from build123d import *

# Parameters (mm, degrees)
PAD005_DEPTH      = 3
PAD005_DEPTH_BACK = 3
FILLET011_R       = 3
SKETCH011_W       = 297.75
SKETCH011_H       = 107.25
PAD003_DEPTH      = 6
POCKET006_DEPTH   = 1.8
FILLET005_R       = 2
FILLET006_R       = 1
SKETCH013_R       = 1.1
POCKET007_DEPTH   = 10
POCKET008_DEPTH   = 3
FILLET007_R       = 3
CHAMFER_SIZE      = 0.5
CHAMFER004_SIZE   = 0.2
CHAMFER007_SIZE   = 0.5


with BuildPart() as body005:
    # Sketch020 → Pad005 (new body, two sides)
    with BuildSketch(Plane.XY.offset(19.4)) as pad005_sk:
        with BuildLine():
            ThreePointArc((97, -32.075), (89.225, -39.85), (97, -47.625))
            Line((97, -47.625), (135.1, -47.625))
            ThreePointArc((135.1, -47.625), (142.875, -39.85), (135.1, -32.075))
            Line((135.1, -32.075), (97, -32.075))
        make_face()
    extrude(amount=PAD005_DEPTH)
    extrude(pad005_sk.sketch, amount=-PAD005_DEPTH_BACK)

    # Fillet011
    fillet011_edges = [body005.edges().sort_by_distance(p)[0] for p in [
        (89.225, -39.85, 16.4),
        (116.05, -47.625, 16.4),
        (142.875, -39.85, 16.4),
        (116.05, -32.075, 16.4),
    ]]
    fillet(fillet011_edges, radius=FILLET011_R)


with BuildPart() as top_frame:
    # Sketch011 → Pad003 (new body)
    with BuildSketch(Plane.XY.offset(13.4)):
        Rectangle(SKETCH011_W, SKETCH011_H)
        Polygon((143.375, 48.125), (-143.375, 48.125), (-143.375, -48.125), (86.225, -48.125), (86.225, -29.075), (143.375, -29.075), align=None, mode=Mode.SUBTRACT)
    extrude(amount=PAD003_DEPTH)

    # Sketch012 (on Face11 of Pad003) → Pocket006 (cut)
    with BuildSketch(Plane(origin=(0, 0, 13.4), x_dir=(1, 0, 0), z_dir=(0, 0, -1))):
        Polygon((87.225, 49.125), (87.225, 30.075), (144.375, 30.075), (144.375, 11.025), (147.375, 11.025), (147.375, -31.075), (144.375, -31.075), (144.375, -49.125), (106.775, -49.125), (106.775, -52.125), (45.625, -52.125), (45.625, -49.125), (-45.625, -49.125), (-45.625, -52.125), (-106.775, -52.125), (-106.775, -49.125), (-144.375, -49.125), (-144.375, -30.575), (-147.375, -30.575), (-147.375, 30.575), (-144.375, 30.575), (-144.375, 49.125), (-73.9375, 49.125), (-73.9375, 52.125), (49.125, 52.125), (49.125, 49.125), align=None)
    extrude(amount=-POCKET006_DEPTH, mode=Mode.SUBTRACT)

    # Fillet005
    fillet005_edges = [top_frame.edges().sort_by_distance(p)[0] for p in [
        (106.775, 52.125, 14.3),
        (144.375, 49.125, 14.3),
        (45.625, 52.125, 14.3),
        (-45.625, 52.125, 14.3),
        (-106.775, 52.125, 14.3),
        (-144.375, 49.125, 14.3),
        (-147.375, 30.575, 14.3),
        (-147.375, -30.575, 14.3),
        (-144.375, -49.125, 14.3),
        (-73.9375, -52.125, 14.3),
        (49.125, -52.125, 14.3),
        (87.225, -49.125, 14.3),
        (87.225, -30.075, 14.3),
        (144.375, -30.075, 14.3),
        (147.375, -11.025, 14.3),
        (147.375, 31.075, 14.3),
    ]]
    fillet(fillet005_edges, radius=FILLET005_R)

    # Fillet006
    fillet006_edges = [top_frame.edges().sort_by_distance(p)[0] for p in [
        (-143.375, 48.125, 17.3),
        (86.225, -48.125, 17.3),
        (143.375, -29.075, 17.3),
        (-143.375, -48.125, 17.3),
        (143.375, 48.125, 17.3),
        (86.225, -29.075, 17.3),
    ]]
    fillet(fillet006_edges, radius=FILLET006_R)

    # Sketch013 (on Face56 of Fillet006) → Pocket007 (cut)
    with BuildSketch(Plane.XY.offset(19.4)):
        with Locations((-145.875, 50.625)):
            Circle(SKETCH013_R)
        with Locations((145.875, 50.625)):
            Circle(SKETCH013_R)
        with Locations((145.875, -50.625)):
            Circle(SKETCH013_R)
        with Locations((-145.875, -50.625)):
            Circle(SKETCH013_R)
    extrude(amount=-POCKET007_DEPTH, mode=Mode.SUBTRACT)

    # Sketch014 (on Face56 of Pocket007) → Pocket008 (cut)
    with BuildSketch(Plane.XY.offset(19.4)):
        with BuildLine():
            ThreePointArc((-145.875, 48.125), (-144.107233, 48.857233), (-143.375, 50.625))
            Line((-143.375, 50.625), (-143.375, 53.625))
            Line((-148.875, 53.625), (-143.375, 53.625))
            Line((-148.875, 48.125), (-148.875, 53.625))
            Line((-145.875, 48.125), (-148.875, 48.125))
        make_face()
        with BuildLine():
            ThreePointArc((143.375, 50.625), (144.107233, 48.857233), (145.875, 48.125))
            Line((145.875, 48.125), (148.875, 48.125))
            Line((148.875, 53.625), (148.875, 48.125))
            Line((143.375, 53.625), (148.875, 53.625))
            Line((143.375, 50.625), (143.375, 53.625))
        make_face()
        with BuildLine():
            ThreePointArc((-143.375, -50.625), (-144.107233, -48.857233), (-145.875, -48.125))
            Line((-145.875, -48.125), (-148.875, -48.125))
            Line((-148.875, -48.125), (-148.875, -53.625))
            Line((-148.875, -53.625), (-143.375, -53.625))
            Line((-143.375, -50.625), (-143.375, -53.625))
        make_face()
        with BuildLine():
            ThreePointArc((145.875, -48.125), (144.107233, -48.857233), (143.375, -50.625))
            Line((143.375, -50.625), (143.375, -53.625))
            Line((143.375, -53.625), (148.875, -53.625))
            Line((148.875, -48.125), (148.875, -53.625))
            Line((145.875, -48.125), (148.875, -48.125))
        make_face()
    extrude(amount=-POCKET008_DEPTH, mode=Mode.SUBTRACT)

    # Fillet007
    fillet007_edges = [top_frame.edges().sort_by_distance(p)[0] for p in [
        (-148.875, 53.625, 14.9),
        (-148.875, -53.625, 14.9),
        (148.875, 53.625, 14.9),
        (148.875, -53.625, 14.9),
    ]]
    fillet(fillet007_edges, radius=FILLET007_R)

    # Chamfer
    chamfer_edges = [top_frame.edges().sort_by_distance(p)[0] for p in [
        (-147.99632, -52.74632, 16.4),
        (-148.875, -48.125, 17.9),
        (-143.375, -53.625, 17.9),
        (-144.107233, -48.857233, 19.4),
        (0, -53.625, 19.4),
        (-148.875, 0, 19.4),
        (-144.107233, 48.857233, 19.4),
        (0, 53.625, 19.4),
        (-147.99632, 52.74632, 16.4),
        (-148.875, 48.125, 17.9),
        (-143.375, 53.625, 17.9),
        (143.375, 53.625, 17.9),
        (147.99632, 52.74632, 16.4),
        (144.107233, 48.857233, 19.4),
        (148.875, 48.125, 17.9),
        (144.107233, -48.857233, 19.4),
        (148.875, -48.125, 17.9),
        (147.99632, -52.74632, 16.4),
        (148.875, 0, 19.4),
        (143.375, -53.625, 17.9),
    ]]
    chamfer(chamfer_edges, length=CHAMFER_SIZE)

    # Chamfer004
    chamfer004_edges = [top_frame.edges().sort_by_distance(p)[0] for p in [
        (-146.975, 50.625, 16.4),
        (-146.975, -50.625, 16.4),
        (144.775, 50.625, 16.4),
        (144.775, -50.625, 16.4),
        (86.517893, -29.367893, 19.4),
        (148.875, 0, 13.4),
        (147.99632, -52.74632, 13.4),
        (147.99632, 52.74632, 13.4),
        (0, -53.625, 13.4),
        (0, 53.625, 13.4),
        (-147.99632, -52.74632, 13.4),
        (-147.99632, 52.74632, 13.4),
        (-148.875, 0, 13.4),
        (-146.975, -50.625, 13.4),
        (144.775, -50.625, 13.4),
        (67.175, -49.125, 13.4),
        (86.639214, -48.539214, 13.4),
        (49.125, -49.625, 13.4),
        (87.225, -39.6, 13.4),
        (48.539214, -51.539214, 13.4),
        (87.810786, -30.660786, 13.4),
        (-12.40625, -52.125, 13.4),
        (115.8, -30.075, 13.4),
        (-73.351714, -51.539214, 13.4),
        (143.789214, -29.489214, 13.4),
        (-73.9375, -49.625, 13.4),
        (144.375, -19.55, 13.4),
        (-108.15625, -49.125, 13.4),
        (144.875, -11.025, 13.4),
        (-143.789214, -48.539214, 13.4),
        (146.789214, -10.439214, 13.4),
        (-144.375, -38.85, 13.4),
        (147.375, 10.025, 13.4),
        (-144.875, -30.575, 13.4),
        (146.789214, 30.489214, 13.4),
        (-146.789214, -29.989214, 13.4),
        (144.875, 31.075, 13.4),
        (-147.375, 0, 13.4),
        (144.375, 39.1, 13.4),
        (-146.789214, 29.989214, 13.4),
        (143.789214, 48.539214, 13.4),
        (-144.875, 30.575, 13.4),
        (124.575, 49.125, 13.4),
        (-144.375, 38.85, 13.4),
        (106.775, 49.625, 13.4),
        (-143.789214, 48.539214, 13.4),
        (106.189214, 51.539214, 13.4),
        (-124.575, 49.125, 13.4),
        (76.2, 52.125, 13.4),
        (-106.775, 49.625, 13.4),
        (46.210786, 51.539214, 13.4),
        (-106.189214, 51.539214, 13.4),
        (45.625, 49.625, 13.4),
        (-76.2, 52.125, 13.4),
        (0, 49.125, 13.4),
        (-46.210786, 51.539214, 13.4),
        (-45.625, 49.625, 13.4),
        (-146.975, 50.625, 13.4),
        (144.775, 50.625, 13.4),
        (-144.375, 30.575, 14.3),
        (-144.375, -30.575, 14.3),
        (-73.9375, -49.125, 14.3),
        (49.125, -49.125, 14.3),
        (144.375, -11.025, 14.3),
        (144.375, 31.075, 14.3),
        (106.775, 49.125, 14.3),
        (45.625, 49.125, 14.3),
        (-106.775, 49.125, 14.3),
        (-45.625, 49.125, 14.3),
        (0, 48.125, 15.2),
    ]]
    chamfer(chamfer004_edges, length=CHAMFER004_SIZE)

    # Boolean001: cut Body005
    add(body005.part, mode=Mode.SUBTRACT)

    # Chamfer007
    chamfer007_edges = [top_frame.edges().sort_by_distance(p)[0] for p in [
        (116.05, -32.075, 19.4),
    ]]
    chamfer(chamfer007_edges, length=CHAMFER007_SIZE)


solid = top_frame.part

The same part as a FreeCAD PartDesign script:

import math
import FreeCAD as App
import Part
import Sketcher

V = App.Vector
Q = App.Units.Quantity


def edges_at(feature, points):
    """Names of the edges that pass closest to the given points."""
    edges = feature.Shape.Edges
    near = lambda p: min(range(len(edges)), key=lambda i: edges[i].distToShape(Part.Vertex(*p))[0])
    return sorted({f"Edge{near(p) + 1}" for p in points})


def add_polygon(sketch, points):
    """Adds a closed chain of lines whose ends are joined by coincident constraints."""
    first, n = sketch.GeometryCount, len(points)
    for a, b in zip(points, points[1:] + points[:1]):
        sketch.addGeometry(Part.LineSegment(App.Vector(*a, 0), App.Vector(*b, 0)), False)
    for i in range(n):
        sketch.addConstraint(Sketcher.Constraint("Coincident", first + i, 2, first + (i + 1) % n, 1))

doc = App.newDocument("Part")
params = doc.addObject("Spreadsheet::Sheet", "Params")
for row, (alias, value) in enumerate([
    ("sketch1_width", "38.1 mm"),
    ("pad1_length", "3 mm"),
    ("pad1_length2", "3 mm"),
    ("fillet_radius", "3 mm"),
    ("sketch2_width", "229.6 mm"),
    ("sketch2_height", "77.2 mm"),
    ("sketch2_width2", "297.75 mm"),
    ("sketch2_width3", "286.75 mm"),
    ("sketch2_height2", "107.25 mm"),
    ("pad2_length", "6 mm"),
    ("sketch3_width", "3 mm"),
    ("sketch3_width2", "38.1 mm"),
    ("sketch3_width3", "37.6 mm"),
    ("sketch3_height", "42.1 mm"),
    ("sketch3_width4", "61.15 mm"),
    ("pocket1_length", "1.8 mm"),
    ("fillet2_radius", "2 mm"),
    ("fillet3_radius", "1 mm"),
    ("sketch4_diameter", "2.2 mm"),
    ("pocket2_length", "10 mm"),
    ("sketch5_radius", "2.5 mm"),
    ("sketch5_width", "3 mm"),
    ("pocket3_length", "3 mm"),
    ("fillet4_radius", "3 mm"),
    ("chamfer_size", "0.5 mm"),
    ("chamfer2_size", "0.2 mm"),
    ("chamfer3_size", "0.5 mm"),
], start=1):
    params.set(f"A{row}", alias)
    params.set(f"B{row}", "=" + value)
    params.setAlias(f"B{row}", alias)

body = doc.addObject("PartDesign::Body", "Body")

sketch1 = doc.addObject("Sketcher::SketchObject", "Sketch")
body.addObject(sketch1)
sketch1.AttachmentSupport = (doc.XY_Plane, [""])
sketch1.MapMode = "FlatFace"
sketch1.AttachmentOffset = App.Placement(V(0, 0, 19.4), App.Rotation())
sketch1.addGeometry([
    Part.ArcOfCircle(Part.Circle(V(97, -40, 0), V(0, 0, 1), 8), math.radians(90), math.radians(270)),
    Part.LineSegment(V(97, -48, 0), V(135, -48, 0)),
    Part.ArcOfCircle(Part.Circle(V(135, -40, 0), V(0, 0, 1), 8), math.radians(-90), math.radians(90)),
    Part.LineSegment(V(135, -32, 0), V(97, -32, 0)),
], False)
sketch1.addConstraint([
    Sketcher.Constraint("Tangent", 0, 2, 1, 1),
    Sketcher.Constraint("Tangent", 1, 2, 2, 1),
    Sketcher.Constraint("Tangent", 2, 2, 3, 1),
    Sketcher.Constraint("Tangent", 3, 2, 0, 1),
    Sketcher.Constraint("Horizontal", 1),
    Sketcher.Constraint("Horizontal", 3),
    Sketcher.Constraint("DistanceX", 1, 1, 1, 2, Q("38.1 mm")),
    Sketcher.Constraint("DistanceX", -1, 1, 0, 3, Q("97 mm")),
    Sketcher.Constraint("Radius", 0, Q("7.775 mm")),
    Sketcher.Constraint("DistanceY", 0, 3, -1, 1, Q("39.85 mm")),
])
sketch1.setExpression("Constraints[6]", "Params.sketch1_width")
pad1 = doc.addObject("PartDesign::Pad", "Pad")
body.addObject(pad1)
pad1.Profile = sketch1
pad1.Type = "TwoLengths"
pad1.setExpression("Length", "Params.pad1_length")
pad1.setExpression("Length2", "Params.pad1_length2")
doc.recompute()

fillet = doc.addObject("PartDesign::Fillet", "Fillet")
body.addObject(fillet)
fillet.Base = (pad1, edges_at(pad1, [
    (89.225, -39.85, 16.4),
    (116.05, -47.625, 16.4),
    (142.875, -39.85, 16.4),
    (116.05, -32.075, 16.4),
]))
fillet.setExpression("Radius", "Params.fillet_radius")
body2 = doc.addObject("PartDesign::Body", "Body001")

sketch2 = doc.addObject("Sketcher::SketchObject", "Sketch001")
body2.addObject(sketch2)
sketch2.AttachmentSupport = (doc.getObject("XY_Plane001"), [""])
sketch2.MapMode = "FlatFace"
sketch2.AttachmentOffset = App.Placement(V(0, 0, 13.4), App.Rotation())
add_polygon(sketch2, [(-149, 54), (-149, -54), (149, -54), (149, 54)])
add_polygon(sketch2, [(-143, 48), (143, 48), (143, -29), (86, -29), (86, -48), (-143, -48)])
sketch2.addConstraint([
    Sketcher.Constraint("Vertical", 0),
    Sketcher.Constraint("Horizontal", 1),
    Sketcher.Constraint("Vertical", 2),
    Sketcher.Constraint("Horizontal", 3),
    Sketcher.Constraint("Horizontal", 4),
    Sketcher.Constraint("Vertical", 5),
    Sketcher.Constraint("Horizontal", 6),
    Sketcher.Constraint("Vertical", 7),
    Sketcher.Constraint("Horizontal", 8),
    Sketcher.Constraint("Vertical", 9),
    Sketcher.Constraint("Symmetric", 0, 2, 2, 2, -1, 1),
    Sketcher.Constraint("Symmetric", 4, 2, 8, 2, -1, 1),
    Sketcher.Constraint("DistanceX", 8, 2, 8, 1, Q("229.6 mm")),
    Sketcher.Constraint("DistanceY", 5, 2, 5, 1, Q("77.2 mm")),
    Sketcher.Constraint("DistanceX", 1, 1, 1, 2, Q("297.75 mm")),
    Sketcher.Constraint("DistanceX", 4, 1, 4, 2, Q("286.75 mm")),
    Sketcher.Constraint("DistanceY", 0, 2, 0, 1, Q("107.25 mm")),
    Sketcher.Constraint("DistanceY", 7, 2, 7, 1, Q("19.05 mm")),
])
sketch2.setExpression("Constraints[22]", "Params.sketch2_width")
sketch2.setExpression("Constraints[23]", "Params.sketch2_height")
sketch2.setExpression("Constraints[24]", "Params.sketch2_width2")
sketch2.setExpression("Constraints[25]", "Params.sketch2_width3")
sketch2.setExpression("Constraints[26]", "Params.sketch2_height2")
pad2 = doc.addObject("PartDesign::Pad", "Pad001")
body2.addObject(pad2)
pad2.Profile = sketch2
pad2.setExpression("Length", "Params.pad2_length")

sketch3 = doc.addObject("Sketcher::SketchObject", "Sketch002")
body2.addObject(sketch3)
sketch3.AttachmentSupport = (doc.getObject("XY_Plane001"), [""])
sketch3.MapMode = "FlatFace"
sketch3.AttachmentOffset = App.Placement(V(0, 0, 13.4), App.Rotation())
add_polygon(sketch3, [(87.2, -30.1), (87.2, -49.1), (49.1, -49.1), (49.1, -52.1), (-73.9, -52.1), (-73.9, -49.1), (-144.4, -49.1), (-144.4, -30.6), (-147.4, -30.6), (-147.4, 30.6), (-144.4, 30.6), (-144.4, 49.1), (-106.8, 49.1), (-106.8, 52.1), (-45.6, 52.1), (-45.6, 49.1), (45.6, 49.1), (45.6, 52.1), (106.8, 52.1), (106.8, 49.1), (144.4, 49.1), (144.4, 31.1), (147.4, 31.1), (147.4, -11), (144.4, -11), (144.4, -30.1)])
sketch3.addConstraint([
    Sketcher.Constraint("Vertical", 0),
    Sketcher.Constraint("Horizontal", 1),
    Sketcher.Constraint("Vertical", 2),
    Sketcher.Constraint("Horizontal", 3),
    Sketcher.Constraint("Vertical", 4),
    Sketcher.Constraint("Horizontal", 5),
    Sketcher.Constraint("Vertical", 6),
    Sketcher.Constraint("Horizontal", 7),
    Sketcher.Constraint("Vertical", 8),
    Sketcher.Constraint("Horizontal", 9),
    Sketcher.Constraint("Vertical", 10),
    Sketcher.Constraint("Horizontal", 11),
    Sketcher.Constraint("Vertical", 12),
    Sketcher.Constraint("Horizontal", 13),
    Sketcher.Constraint("Vertical", 14),
    Sketcher.Constraint("Horizontal", 15),
    Sketcher.Constraint("Vertical", 16),
    Sketcher.Constraint("Horizontal", 17),
    Sketcher.Constraint("Vertical", 18),
    Sketcher.Constraint("Horizontal", 19),
    Sketcher.Constraint("Vertical", 20),
    Sketcher.Constraint("Horizontal", 21),
    Sketcher.Constraint("Vertical", 22),
    Sketcher.Constraint("Horizontal", 23),
    Sketcher.Constraint("Vertical", 24),
    Sketcher.Constraint("Horizontal", 25),
    Sketcher.Constraint("Symmetric", 5, 2, 19, 2, -1, 1),
    Sketcher.Constraint("Symmetric", 13, 2, 16, 2, -2),
    Sketcher.Constraint("Symmetric", 11, 2, 18, 2, -2),
    Sketcher.Constraint("Symmetric", 6, 2, 9, 2, -1),
    Sketcher.Constraint("Horizontal", 1, 2, 4, 2),
    Sketcher.Constraint("Horizontal", 11, 2, 14, 2),
    Sketcher.Constraint("Vertical", 20, 2, 23, 2),
    Sketcher.Constraint("Equal", 9, 21),
    Sketcher.Constraint("Equal", 23, 2),
    Sketcher.Constraint("Equal", 17, 8),
    Sketcher.Constraint("Equal", 4, 12),
    Sketcher.Constraint("Equal", 0, 24),
    Sketcher.Constraint("DistanceX", 7, 2, 7, 1, Q("3 mm")),
    Sketcher.Constraint("DistanceX", 1, 2, 1, 1, Q("38.1 mm")),
    Sketcher.Constraint("DistanceX", 11, 1, 11, 2, Q("37.6 mm")),
    Sketcher.Constraint("DistanceY", 22, 2, 22, 1, Q("42.1 mm")),
    Sketcher.Constraint("DistanceX", 13, 1, 13, 2, Q("61.15 mm")),
    Sketcher.Constraint("DistanceX", 15, 1, 15, 2, Q("91.25 mm")),
    Sketcher.Constraint("DistanceX", 25, 2, 25, 1, Q("57.15 mm")),
    Sketcher.Constraint("DistanceY", 0, 2, 0, 1, Q("19.05 mm")),
    Sketcher.Constraint("DistanceY", 6, 1, 6, 2, Q("18.55 mm")),
    Sketcher.Constraint("DistanceX", 3, 2, 3, 1, Q("123.0625 mm")),
])
sketch3.setExpression("Constraints[64]", "Params.sketch3_width")
sketch3.setExpression("Constraints[65]", "Params.sketch3_width2")
sketch3.setExpression("Constraints[66]", "Params.sketch3_width3")
sketch3.setExpression("Constraints[67]", "Params.sketch3_height")
sketch3.setExpression("Constraints[68]", "Params.sketch3_width4")
pocket1 = doc.addObject("PartDesign::Pocket", "Pocket")
body2.addObject(pocket1)
pocket1.Profile = sketch3
pocket1.setExpression("Length", "Params.pocket1_length")
pocket1.Reversed = True
doc.recompute()

fillet2 = doc.addObject("PartDesign::Fillet", "Fillet001")
body2.addObject(fillet2)
fillet2.Base = (pocket1, edges_at(pocket1, [
    (106.775, 52.125, 14.3),
    (144.375, 49.125, 14.3),
    (45.625, 52.125, 14.3),
    (-45.625, 52.125, 14.3),
    (-106.775, 52.125, 14.3),
    (-144.375, 49.125, 14.3),
    (-147.375, 30.575, 14.3),
    (-147.375, -30.575, 14.3),
    (-144.375, -49.125, 14.3),
    (-73.938, -52.125, 14.3),
    (49.125, -52.125, 14.3),
    (87.225, -49.125, 14.3),
    (87.225, -30.075, 14.3),
    (144.375, -30.075, 14.3),
    (147.375, -11.025, 14.3),
    (147.375, 31.075, 14.3),
]))
fillet2.setExpression("Radius", "Params.fillet2_radius")
doc.recompute()

fillet3 = doc.addObject("PartDesign::Fillet", "Fillet002")
body2.addObject(fillet3)
fillet3.Base = (fillet2, edges_at(fillet2, [
    (-143.375, 48.125, 17.3),
    (86.225, -48.125, 17.3),
    (143.375, -29.075, 17.3),
    (-143.375, -48.125, 17.3),
    (143.375, 48.125, 17.3),
    (86.225, -29.075, 17.3),
]))
fillet3.setExpression("Radius", "Params.fillet3_radius")

sketch4 = doc.addObject("Sketcher::SketchObject", "Sketch003")
body2.addObject(sketch4)
sketch4.AttachmentSupport = (doc.getObject("XY_Plane001"), [""])
sketch4.MapMode = "FlatFace"
sketch4.AttachmentOffset = App.Placement(V(0, 0, 19.4), App.Rotation())
sketch4.addGeometry([
    Part.Circle(V(-145.9, 50.6, 0), V(0, 0, 1), 1.1),
    Part.Circle(V(145.9, 50.6, 0), V(0, 0, 1), 1.1),
    Part.Circle(V(145.9, -50.6, 0), V(0, 0, 1), 1.1),
    Part.Circle(V(-145.9, -50.6, 0), V(0, 0, 1), 1.1),
], False)
sketch4.addConstraint([
    Sketcher.Constraint("Equal", 0, 1),
    Sketcher.Constraint("Equal", 1, 2),
    Sketcher.Constraint("Equal", 2, 3),
    Sketcher.Constraint("Symmetric", 0, 3, 2, 3, -1, 1),
    Sketcher.Constraint("Symmetric", 1, 3, 3, 3, -1, 1),
    Sketcher.Constraint("Symmetric", 0, 3, 1, 3, -2),
    Sketcher.Constraint("Diameter", 0, Q("2.2 mm")),
    Sketcher.Constraint("DistanceX", 0, 3, 1, 3, Q("291.75 mm")),
    Sketcher.Constraint("DistanceY", 2, 3, 1, 3, Q("101.25 mm")),
])
sketch4.setExpression("Constraints[6]", "Params.sketch4_diameter")
pocket2 = doc.addObject("PartDesign::Pocket", "Pocket001")
body2.addObject(pocket2)
pocket2.Profile = sketch4
pocket2.setExpression("Length", "Params.pocket2_length")

sketch5 = doc.addObject("Sketcher::SketchObject", "Sketch004")
body2.addObject(sketch5)
sketch5.AttachmentSupport = (doc.getObject("XY_Plane001"), [""])
sketch5.MapMode = "FlatFace"
sketch5.AttachmentOffset = App.Placement(V(0, 0, 19.4), App.Rotation())
sketch5.addGeometry([
    Part.ArcOfCircle(Part.Circle(V(-145.9, 50.6, 0), V(0, 0, 1), 2.5), math.radians(-90), math.radians(0)),
    Part.LineSegment(V(-143.4, 50.6, 0), V(-143.4, 53.6, 0)),
    Part.LineSegment(V(-143.4, 53.6, 0), V(-148.9, 53.6, 0)),
    Part.LineSegment(V(-148.9, 53.6, 0), V(-148.9, 48.1, 0)),
    Part.LineSegment(V(-148.9, 48.1, 0), V(-145.9, 48.1, 0)),
    Part.ArcOfCircle(Part.Circle(V(145.9, 50.6, 0), V(0, 0, 1), 2.5), math.radians(180), math.radians(270)),
    Part.LineSegment(V(145.9, 48.1, 0), V(148.9, 48.1, 0)),
    Part.LineSegment(V(148.9, 48.1, 0), V(148.9, 53.6, 0)),
    Part.LineSegment(V(148.9, 53.6, 0), V(143.4, 53.6, 0)),
    Part.LineSegment(V(143.4, 53.6, 0), V(143.4, 50.6, 0)),
    Part.ArcOfCircle(Part.Circle(V(-145.9, -50.6, 0), V(0, 0, 1), 2.5), math.radians(0), math.radians(90)),
    Part.LineSegment(V(-145.9, -48.1, 0), V(-148.9, -48.1, 0)),
    Part.LineSegment(V(-148.9, -48.1, 0), V(-148.9, -53.6, 0)),
    Part.LineSegment(V(-148.9, -53.6, 0), V(-143.4, -53.6, 0)),
    Part.LineSegment(V(-143.4, -53.6, 0), V(-143.4, -50.6, 0)),
    Part.ArcOfCircle(Part.Circle(V(145.9, -50.6, 0), V(0, 0, 1), 2.5), math.radians(90), math.radians(180)),
    Part.LineSegment(V(143.4, -50.6, 0), V(143.4, -53.6, 0)),
    Part.LineSegment(V(143.4, -53.6, 0), V(148.9, -53.6, 0)),
    Part.LineSegment(V(148.9, -53.6, 0), V(148.9, -48.1, 0)),
    Part.LineSegment(V(148.9, -48.1, 0), V(145.9, -48.1, 0)),
], False)
sketch5.addConstraint([
    Sketcher.Constraint("Tangent", 0, 2, 1, 1),
    Sketcher.Constraint("Coincident", 1, 2, 2, 1),
    Sketcher.Constraint("Coincident", 2, 2, 3, 1),
    Sketcher.Constraint("Coincident", 3, 2, 4, 1),
    Sketcher.Constraint("Tangent", 4, 2, 0, 1),
    Sketcher.Constraint("Tangent", 5, 2, 6, 1),
    Sketcher.Constraint("Coincident", 6, 2, 7, 1),
    Sketcher.Constraint("Coincident", 7, 2, 8, 1),
    Sketcher.Constraint("Coincident", 8, 2, 9, 1),
    Sketcher.Constraint("Tangent", 9, 2, 5, 1),
    Sketcher.Constraint("Tangent", 10, 2, 11, 1),
    Sketcher.Constraint("Coincident", 11, 2, 12, 1),
    Sketcher.Constraint("Coincident", 12, 2, 13, 1),
    Sketcher.Constraint("Coincident", 13, 2, 14, 1),
    Sketcher.Constraint("Tangent", 14, 2, 10, 1),
    Sketcher.Constraint("Tangent", 15, 2, 16, 1),
    Sketcher.Constraint("Coincident", 16, 2, 17, 1),
    Sketcher.Constraint("Coincident", 17, 2, 18, 1),
    Sketcher.Constraint("Coincident", 18, 2, 19, 1),
    Sketcher.Constraint("Tangent", 19, 2, 15, 1),
    Sketcher.Constraint("Vertical", 1),
    Sketcher.Constraint("Horizontal", 2),
    Sketcher.Constraint("Vertical", 3),
    Sketcher.Constraint("Horizontal", 4),
    Sketcher.Constraint("Horizontal", 6),
    Sketcher.Constraint("Vertical", 7),
    Sketcher.Constraint("Horizontal", 8),
    Sketcher.Constraint("Vertical", 9),
    Sketcher.Constraint("Horizontal", 11),
    Sketcher.Constraint("Vertical", 12),
    Sketcher.Constraint("Horizontal", 13),
    Sketcher.Constraint("Vertical", 14),
    Sketcher.Constraint("Vertical", 16),
    Sketcher.Constraint("Horizontal", 17),
    Sketcher.Constraint("Vertical", 18),
    Sketcher.Constraint("Horizontal", 19),
    Sketcher.Constraint("Equal", 0, 5),
    Sketcher.Constraint("Equal", 5, 10),
    Sketcher.Constraint("Equal", 10, 15),
    Sketcher.Constraint("Symmetric", 5, 3, 10, 3, -1, 1),
    Sketcher.Constraint("Symmetric", 0, 3, 15, 3, -1, 1),
    Sketcher.Constraint("Symmetric", 7, 2, 12, 2, -1, 1),
    Sketcher.Constraint("Symmetric", 2, 2, 17, 2, -1, 1),
    Sketcher.Constraint("Symmetric", 0, 3, 5, 3, -2),
    Sketcher.Constraint("Symmetric", 2, 2, 7, 2, -2),
    Sketcher.Constraint("Equal", 19, 1),
    Sketcher.Constraint("Radius", 0, Q("2.5 mm")),
    Sketcher.Constraint("DistanceX", 4, 1, 4, 2, Q("3 mm")),
    Sketcher.Constraint("DistanceX", 0, 3, 5, 3, Q("291.75 mm")),
    Sketcher.Constraint("DistanceY", 10, 3, 0, 3, Q("101.25 mm")),
])
sketch5.setExpression("Constraints[46]", "Params.sketch5_radius")
sketch5.setExpression("Constraints[47]", "Params.sketch5_width")
pocket3 = doc.addObject("PartDesign::Pocket", "Pocket002")
body2.addObject(pocket3)
pocket3.Profile = sketch5
pocket3.setExpression("Length", "Params.pocket3_length")
doc.recompute()

fillet4 = doc.addObject("PartDesign::Fillet", "Fillet003")
body2.addObject(fillet4)
fillet4.Base = (pocket3, edges_at(pocket3, [
    (-148.875, 53.625, 14.9),
    (-148.875, -53.625, 14.9),
    (148.875, 53.625, 14.9),
    (148.875, -53.625, 14.9),
]))
fillet4.setExpression("Radius", "Params.fillet4_radius")
doc.recompute()

chamfer = doc.addObject("PartDesign::Chamfer", "Chamfer")
body2.addObject(chamfer)
chamfer.Base = (fillet4, edges_at(fillet4, [
    (-147.996, -52.746, 16.4),
    (-148.875, -48.125, 17.9),
    (-143.375, -53.625, 17.9),
    (-144.107, -48.857, 19.4),
    (0, -53.625, 19.4),
    (-148.875, 0, 19.4),
    (-144.107, 48.857, 19.4),
    (0, 53.625, 19.4),
    (-147.996, 52.746, 16.4),
    (-148.875, 48.125, 17.9),
    (-143.375, 53.625, 17.9),
    (143.375, 53.625, 17.9),
    (147.996, 52.746, 16.4),
    (144.107, 48.857, 19.4),
    (148.875, 48.125, 17.9),
    (144.107, -48.857, 19.4),
    (148.875, -48.125, 17.9),
    (147.996, -52.746, 16.4),
    (148.875, 0, 19.4),
    (143.375, -53.625, 17.9),
]))
chamfer.setExpression("Size", "Params.chamfer_size")
doc.recompute()

chamfer2 = doc.addObject("PartDesign::Chamfer", "Chamfer001")
body2.addObject(chamfer2)
chamfer2.Base = (chamfer, edges_at(chamfer, [
    (-146.975, 50.625, 16.4),
    (-146.975, -50.625, 16.4),
    (144.775, 50.625, 16.4),
    (144.775, -50.625, 16.4),
    (86.518, -29.368, 19.4),
    (148.875, 0, 13.4),
    (147.996, -52.746, 13.4),
    (147.996, 52.746, 13.4),
    (0, -53.625, 13.4),
    (0, 53.625, 13.4),
    (-147.996, -52.746, 13.4),
    (-147.996, 52.746, 13.4),
    (-148.875, 0, 13.4),
    (-146.975, -50.625, 13.4),
    (144.775, -50.625, 13.4),
    (67.175, -49.125, 13.4),
    (86.639, -48.539, 13.4),
    (49.125, -49.625, 13.4),
    (87.225, -39.6, 13.4),
    (48.539, -51.539, 13.4),
    (87.811, -30.661, 13.4),
    (-12.406, -52.125, 13.4),
    (115.8, -30.075, 13.4),
    (-73.352, -51.539, 13.4),
    (143.789, -29.489, 13.4),
    (-73.938, -49.625, 13.4),
    (144.375, -19.55, 13.4),
    (-108.156, -49.125, 13.4),
    (144.875, -11.025, 13.4),
    (-143.789, -48.539, 13.4),
    (146.789, -10.439, 13.4),
    (-144.375, -38.85, 13.4),
    (147.375, 10.025, 13.4),
    (-144.875, -30.575, 13.4),
    (146.789, 30.489, 13.4),
    (-146.789, -29.989, 13.4),
    (144.875, 31.075, 13.4),
    (-147.375, 0, 13.4),
    (144.375, 39.1, 13.4),
    (-146.789, 29.989, 13.4),
    (143.789, 48.539, 13.4),
    (-144.875, 30.575, 13.4),
    (124.575, 49.125, 13.4),
    (-144.375, 38.85, 13.4),
    (106.775, 49.625, 13.4),
    (-143.789, 48.539, 13.4),
    (106.189, 51.539, 13.4),
    (-124.575, 49.125, 13.4),
    (76.2, 52.125, 13.4),
    (-106.775, 49.625, 13.4),
    (46.211, 51.539, 13.4),
    (-106.189, 51.539, 13.4),
    (45.625, 49.625, 13.4),
    (-76.2, 52.125, 13.4),
    (0, 49.125, 13.4),
    (-46.211, 51.539, 13.4),
    (-45.625, 49.625, 13.4),
    (-146.975, 50.625, 13.4),
    (144.775, 50.625, 13.4),
    (-144.375, 30.575, 14.3),
    (-144.375, -30.575, 14.3),
    (-73.938, -49.125, 14.3),
    (49.125, -49.125, 14.3),
    (144.375, -11.025, 14.3),
    (144.375, 31.075, 14.3),
    (106.775, 49.125, 14.3),
    (45.625, 49.125, 14.3),
    (-106.775, 49.125, 14.3),
    (-45.625, 49.125, 14.3),
    (0, 48.125, 15.2),
]))
chamfer2.setExpression("Size", "Params.chamfer2_size")
doc.recompute()

boolean = doc.addObject("PartDesign::Boolean", "Boolean")
body2.addObject(boolean)
boolean.Type = "Cut"
boolean.addObjects([body])
doc.recompute()

chamfer3 = doc.addObject("PartDesign::Chamfer", "Chamfer002")
body2.addObject(chamfer3)
chamfer3.Base = (boolean, edges_at(boolean, [(116.05, -32.075, 19.4)]))
chamfer3.setExpression("Size", "Params.chamfer3_size")

doc.recompute()
